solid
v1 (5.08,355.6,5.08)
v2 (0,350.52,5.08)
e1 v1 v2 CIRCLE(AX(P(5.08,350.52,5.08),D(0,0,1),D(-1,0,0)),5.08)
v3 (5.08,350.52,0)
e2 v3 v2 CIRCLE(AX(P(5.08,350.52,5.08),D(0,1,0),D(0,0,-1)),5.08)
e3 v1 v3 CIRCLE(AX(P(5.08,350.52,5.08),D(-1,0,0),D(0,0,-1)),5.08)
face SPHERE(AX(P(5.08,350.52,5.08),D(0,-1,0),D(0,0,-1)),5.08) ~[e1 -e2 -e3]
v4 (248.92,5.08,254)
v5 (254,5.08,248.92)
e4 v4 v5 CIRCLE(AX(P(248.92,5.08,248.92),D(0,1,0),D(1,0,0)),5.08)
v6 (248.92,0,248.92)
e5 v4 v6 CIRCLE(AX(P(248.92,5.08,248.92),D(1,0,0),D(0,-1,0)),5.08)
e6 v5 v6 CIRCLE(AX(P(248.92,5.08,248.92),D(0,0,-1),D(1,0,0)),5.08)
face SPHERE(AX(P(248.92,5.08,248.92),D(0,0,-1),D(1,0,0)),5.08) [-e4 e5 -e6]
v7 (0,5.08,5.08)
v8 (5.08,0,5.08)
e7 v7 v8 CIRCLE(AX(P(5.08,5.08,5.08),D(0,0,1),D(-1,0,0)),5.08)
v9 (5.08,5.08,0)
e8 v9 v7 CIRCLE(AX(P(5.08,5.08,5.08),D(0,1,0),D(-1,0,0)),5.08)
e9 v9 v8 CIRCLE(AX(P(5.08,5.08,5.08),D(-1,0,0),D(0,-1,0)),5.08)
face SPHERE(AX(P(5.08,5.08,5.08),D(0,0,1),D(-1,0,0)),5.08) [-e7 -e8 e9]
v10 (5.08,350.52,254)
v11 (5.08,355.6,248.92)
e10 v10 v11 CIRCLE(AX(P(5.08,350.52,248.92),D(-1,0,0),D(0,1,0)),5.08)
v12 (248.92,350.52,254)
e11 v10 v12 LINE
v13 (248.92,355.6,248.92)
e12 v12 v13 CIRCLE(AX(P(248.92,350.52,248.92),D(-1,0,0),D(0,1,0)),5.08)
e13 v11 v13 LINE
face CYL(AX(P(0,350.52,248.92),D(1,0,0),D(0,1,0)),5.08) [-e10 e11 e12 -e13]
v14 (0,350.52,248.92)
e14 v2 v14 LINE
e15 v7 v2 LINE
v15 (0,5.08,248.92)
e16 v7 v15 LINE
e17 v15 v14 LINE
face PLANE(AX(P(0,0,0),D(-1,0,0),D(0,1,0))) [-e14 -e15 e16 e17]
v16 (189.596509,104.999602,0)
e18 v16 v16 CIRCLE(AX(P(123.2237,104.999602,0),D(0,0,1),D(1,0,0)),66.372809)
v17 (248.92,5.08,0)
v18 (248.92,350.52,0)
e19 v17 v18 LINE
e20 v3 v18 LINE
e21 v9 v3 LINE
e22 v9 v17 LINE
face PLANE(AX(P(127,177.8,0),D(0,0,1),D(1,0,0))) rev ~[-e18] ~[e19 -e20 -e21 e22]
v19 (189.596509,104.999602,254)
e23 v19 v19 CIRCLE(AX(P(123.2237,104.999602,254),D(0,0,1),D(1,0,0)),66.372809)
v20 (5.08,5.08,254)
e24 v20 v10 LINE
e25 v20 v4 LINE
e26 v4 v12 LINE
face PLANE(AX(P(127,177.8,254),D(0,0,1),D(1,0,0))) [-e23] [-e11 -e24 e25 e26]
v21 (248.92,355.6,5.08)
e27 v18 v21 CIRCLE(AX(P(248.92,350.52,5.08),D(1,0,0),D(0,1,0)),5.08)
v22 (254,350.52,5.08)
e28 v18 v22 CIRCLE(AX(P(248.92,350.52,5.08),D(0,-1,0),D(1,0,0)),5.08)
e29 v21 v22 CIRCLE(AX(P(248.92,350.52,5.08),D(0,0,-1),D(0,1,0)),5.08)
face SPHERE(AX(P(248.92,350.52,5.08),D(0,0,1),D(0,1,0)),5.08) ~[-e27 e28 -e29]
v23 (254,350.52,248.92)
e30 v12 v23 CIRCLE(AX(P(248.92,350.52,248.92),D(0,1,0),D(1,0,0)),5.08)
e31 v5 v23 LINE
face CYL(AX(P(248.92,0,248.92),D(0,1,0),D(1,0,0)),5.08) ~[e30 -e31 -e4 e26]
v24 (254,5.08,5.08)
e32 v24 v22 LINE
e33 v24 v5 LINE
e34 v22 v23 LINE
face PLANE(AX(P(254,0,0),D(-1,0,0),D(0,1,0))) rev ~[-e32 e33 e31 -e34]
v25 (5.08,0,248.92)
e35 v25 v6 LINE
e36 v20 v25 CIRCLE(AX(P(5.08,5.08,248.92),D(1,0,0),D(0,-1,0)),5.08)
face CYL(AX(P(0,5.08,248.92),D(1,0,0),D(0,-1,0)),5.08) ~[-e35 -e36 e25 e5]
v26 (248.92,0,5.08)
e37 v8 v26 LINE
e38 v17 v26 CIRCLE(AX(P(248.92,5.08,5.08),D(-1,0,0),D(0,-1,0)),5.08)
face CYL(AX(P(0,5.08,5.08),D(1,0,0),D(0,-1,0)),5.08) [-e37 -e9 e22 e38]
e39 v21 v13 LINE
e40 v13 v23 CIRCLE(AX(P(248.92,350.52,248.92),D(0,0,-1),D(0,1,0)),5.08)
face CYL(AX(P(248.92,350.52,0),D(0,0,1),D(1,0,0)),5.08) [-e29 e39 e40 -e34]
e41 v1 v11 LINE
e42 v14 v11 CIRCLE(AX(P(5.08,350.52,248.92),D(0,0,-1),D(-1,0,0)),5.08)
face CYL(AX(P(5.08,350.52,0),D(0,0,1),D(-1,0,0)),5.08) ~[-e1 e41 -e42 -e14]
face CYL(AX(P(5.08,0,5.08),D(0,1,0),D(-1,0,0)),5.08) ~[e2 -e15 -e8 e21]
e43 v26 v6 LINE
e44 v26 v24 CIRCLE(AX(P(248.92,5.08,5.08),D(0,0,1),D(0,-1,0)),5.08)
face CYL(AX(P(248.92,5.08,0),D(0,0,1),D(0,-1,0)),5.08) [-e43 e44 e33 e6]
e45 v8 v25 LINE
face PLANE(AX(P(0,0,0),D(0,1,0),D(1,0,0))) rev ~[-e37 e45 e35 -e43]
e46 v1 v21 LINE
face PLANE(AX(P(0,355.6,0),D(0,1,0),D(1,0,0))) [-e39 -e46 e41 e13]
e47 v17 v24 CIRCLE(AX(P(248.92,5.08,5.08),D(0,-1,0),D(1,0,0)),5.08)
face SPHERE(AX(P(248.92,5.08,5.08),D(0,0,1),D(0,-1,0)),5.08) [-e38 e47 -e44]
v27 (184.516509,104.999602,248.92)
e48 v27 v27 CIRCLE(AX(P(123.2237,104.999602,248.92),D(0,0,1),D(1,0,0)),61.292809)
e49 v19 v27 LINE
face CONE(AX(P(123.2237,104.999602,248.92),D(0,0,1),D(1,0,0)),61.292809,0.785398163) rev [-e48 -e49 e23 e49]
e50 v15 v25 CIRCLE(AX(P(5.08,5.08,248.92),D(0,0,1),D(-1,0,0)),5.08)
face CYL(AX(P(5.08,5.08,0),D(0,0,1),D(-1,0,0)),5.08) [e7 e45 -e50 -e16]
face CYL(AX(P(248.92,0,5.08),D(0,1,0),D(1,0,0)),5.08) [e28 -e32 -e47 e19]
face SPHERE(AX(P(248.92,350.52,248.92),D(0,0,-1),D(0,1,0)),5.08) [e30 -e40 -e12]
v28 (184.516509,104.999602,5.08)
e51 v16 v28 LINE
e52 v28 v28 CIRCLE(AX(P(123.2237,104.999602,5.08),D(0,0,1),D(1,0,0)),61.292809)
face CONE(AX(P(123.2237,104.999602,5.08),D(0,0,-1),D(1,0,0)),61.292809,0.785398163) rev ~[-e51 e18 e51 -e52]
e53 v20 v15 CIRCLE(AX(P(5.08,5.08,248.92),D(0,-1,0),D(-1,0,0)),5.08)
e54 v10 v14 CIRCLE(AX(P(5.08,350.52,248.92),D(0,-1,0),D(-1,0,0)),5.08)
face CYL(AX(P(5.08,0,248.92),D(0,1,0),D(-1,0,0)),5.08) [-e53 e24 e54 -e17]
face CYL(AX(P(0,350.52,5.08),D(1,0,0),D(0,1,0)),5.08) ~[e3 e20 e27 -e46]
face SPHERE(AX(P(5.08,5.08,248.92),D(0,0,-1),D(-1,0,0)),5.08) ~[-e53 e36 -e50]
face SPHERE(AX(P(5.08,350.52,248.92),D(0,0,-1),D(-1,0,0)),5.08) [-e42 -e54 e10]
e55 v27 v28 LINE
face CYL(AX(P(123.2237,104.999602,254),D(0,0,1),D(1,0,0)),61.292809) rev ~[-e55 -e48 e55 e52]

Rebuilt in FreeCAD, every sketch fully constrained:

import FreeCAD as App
import Part
import Sketcher
from FreeCAD import Vector
Q = App.Units.Quantity


def edges_at(feature, points):
    """Names of the edges that pass closest to the given points."""
    edges = feature.Shape.Edges
    near = lambda p: min(range(len(edges)), key=lambda i: edges[i].distToShape(Part.Vertex(*p))[0])
    return sorted({f"Edge{near(p) + 1}" for p in points})


def add_polygon(sketch, points):
    """Adds a closed chain of lines whose ends are joined by coincident constraints."""
    first, n = sketch.GeometryCount, len(points)
    for a, b in zip(points, points[1:] + points[:1]):
        sketch.addGeometry(Part.LineSegment(App.Vector(*a, 0), App.Vector(*b, 0)), False)
    for i in range(n):
        sketch.addConstraint(Sketcher.Constraint("Coincident", first + i, 2, first + (i + 1) % n, 1))

doc = App.newDocument("Part")
params = doc.addObject("Spreadsheet::Sheet", "Params")
for row, (alias, value) in enumerate([
    ("sketch1_width", "10 in"),
    ("sketch1_height", "14 in"),
    ("pad1_length", "10 in"),
    ("fillet_radius", "0.2 in"),
    ("chamfer_size", "0.2 in"),
], start=1):
    params.set(f"A{row}", alias)
    params.set(f"B{row}", "=" + value)
    params.setAlias(f"B{row}", alias)

body = doc.addObject("PartDesign::Body", "Body")

# Sketch on XY plane
sketch1 = body.newObject("Sketcher::SketchObject", "Sketch")
sketch1.AttachmentSupport = (doc.getObject("XY_Plane"), [""])
sketch1.MapMode = "FlatFace"
add_polygon(sketch1, [(0, 356), (0, 0), (254, 0), (254, 356)])  # lines 0-3
sketch1.addConstraint([
    Sketcher.Constraint("Vertical", 0),
    Sketcher.Constraint("Horizontal", 1),
    Sketcher.Constraint("Vertical", 2),
    Sketcher.Constraint("Horizontal", 3),
    Sketcher.Constraint("Coincident", 0, 2, -1, 1),
    Sketcher.Constraint("DistanceX", 1, 1, 1, 2, Q("10 in")),
    Sketcher.Constraint("DistanceY", 0, 2, 0, 1, Q("14 in")),
])
sketch1.setExpression("Constraints[9]", "Params.sketch1_width")
sketch1.setExpression("Constraints[10]", "Params.sketch1_height")
pad1 = body.newObject("PartDesign::Pad", "Pad")
pad1.Profile = sketch1
pad1.setExpression("Length", "Params.pad1_length")
doc.recompute()

fillet = body.newObject("PartDesign::Fillet", "Fillet")
fillet.Base = (pad1, ["Edge1"])
fillet.UseAllEdges = True
fillet.setExpression("Radius", "Params.fillet_radius")

# Sketch on XY plane
sketch2 = body.newObject("Sketcher::SketchObject", "Sketch001")
sketch2.AttachmentSupport = (doc.getObject("XY_Plane"), [""])
sketch2.MapMode = "FlatFace"
sketch2.AttachmentOffset = App.Placement(Vector(0, 0, 10 * 25.4), App.Rotation())
sketch2.addGeometry(Part.Circle(Vector(123, 105, 0), Vector(0, 0, 1), 61), False)
sketch2.addConstraint([
    Sketcher.Constraint("Diameter", 0, 122.585618),
    Sketcher.Constraint("DistanceX", -1, 1, 0, 3, 123.2237),
    Sketcher.Constraint("DistanceY", -1, 1, 0, 3, 104.999602),
])
pocket1 = body.newObject("PartDesign::Pocket", "Pocket")
pocket1.Profile = sketch2
pocket1.Type = "ThroughAll"
doc.recompute()

chamfer = body.newObject("PartDesign::Chamfer", "Chamfer")
chamfer.Base = (pocket1, edges_at(pocket1, [(61.931, 105, 254), (61.931, 105, 0)]))
chamfer.setExpression("Size", "Params.chamfer_size")

doc.recompute()
